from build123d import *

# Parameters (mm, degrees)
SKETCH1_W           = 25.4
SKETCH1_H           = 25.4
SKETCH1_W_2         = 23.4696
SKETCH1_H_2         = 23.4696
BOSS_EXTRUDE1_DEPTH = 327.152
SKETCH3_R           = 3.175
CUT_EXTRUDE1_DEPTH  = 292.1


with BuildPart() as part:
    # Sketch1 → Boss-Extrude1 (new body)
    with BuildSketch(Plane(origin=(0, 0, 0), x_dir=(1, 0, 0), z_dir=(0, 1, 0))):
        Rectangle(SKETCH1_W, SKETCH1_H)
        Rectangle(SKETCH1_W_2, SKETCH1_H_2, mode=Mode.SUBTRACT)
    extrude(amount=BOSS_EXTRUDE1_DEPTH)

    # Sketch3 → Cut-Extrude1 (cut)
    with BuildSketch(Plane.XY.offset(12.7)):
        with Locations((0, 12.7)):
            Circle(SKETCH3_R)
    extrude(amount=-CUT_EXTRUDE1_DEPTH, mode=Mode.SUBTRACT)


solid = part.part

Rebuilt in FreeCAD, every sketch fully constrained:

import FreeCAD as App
import Part
import Sketcher
from FreeCAD import Vector
Q = App.Units.Quantity

doc = App.newDocument("Part")
params = doc.addObject("Spreadsheet::Sheet", "Params")
for row, (alias, value) in enumerate([
    ("sketch1_width", "1 in"),
    ("sketch1_width2", "0.924 in"),
    ("pad1_length", "12.88 in"),
    ("sketch2_diameter", "0.25 in"),
    ("pocket1_length", "11.5 in"),
], start=1):
    params.set(f"A{row}", alias)
    params.set(f"B{row}", "=" + value)
    params.setAlias(f"B{row}", alias)

body = doc.addObject("PartDesign::Body", "Body")

# Sketch on XZ plane
sketch1 = body.newObject("Sketcher::SketchObject", "Sketch")
sketch1.AttachmentSupport = (doc.getObject("XZ_Plane"), [""])
sketch1.MapMode = "FlatFace"
sketch1.addGeometry(Part.LineSegment(Vector(-13, -13, 0), Vector(-13, 13, 0)), False)
sketch1.addGeometry(Part.LineSegment(Vector(-13, 13, 0), Vector(13, 13, 0)), False)
sketch1.addGeometry(Part.LineSegment(Vector(13, 13, 0), Vector(13, -13, 0)), False)
sketch1.addGeometry(Part.LineSegment(Vector(13, -13, 0), Vector(-13, -13, 0)), False)
sketch1.addGeometry(Part.LineSegment(Vector(12, 12, 0), Vector(-12, 12, 0)), False)
sketch1.addGeometry(Part.LineSegment(Vector(-12, 12, 0), Vector(-12, -12, 0)), False)
sketch1.addGeometry(Part.LineSegment(Vector(-12, -12, 0), Vector(12, -12, 0)), False)
sketch1.addGeometry(Part.LineSegment(Vector(12, -12, 0), Vector(12, 12, 0)), False)
sketch1.addConstraint(Sketcher.Constraint("Coincident", 0, 2, 1, 1))
sketch1.addConstraint(Sketcher.Constraint("Coincident", 1, 2, 2, 1))
sketch1.addConstraint(Sketcher.Constraint("Coincident", 2, 2, 3, 1))
sketch1.addConstraint(Sketcher.Constraint("Coincident", 3, 2, 0, 1))
sketch1.addConstraint(Sketcher.Constraint("Coincident", 4, 2, 5, 1))
sketch1.addConstraint(Sketcher.Constraint("Coincident", 5, 2, 6, 1))
sketch1.addConstraint(Sketcher.Constraint("Coincident", 6, 2, 7, 1))
sketch1.addConstraint(Sketcher.Constraint("Coincident", 7, 2, 4, 1))
sketch1.addConstraint(Sketcher.Constraint("Vertical", 0))
sketch1.addConstraint(Sketcher.Constraint("Horizontal", 1))
sketch1.addConstraint(Sketcher.Constraint("Vertical", 2))
sketch1.addConstraint(Sketcher.Constraint("Horizontal", 3))
sketch1.addConstraint(Sketcher.Constraint("Horizontal", 4))
sketch1.addConstraint(Sketcher.Constraint("Vertical", 5))
sketch1.addConstraint(Sketcher.Constraint("Horizontal", 6))
sketch1.addConstraint(Sketcher.Constraint("Vertical", 7))
sketch1.addConstraint(Sketcher.Constraint("Symmetric", 0, 2, 2, 2, -1, 1))
sketch1.addConstraint(Sketcher.Constraint("Symmetric", 4, 2, 6, 2, -1, 1))
sketch1.addConstraint(Sketcher.Constraint("Equal", 3, 0))
sketch1.addConstraint(Sketcher.Constraint("Equal", 6, 5))
sketch1.addConstraint(Sketcher.Constraint("DistanceX", 1, 1, 1, 2, Q("1 in")))
sketch1.addConstraint(Sketcher.Constraint("DistanceX", 4, 2, 4, 1, Q("0.924 in")))
sketch1.setExpression("Constraints[20]", "Params.sketch1_width")
sketch1.setExpression("Constraints[21]", "Params.sketch1_width2")
pad1 = body.newObject("PartDesign::Pad", "Pad")
pad1.Profile = sketch1
pad1.setExpression("Length", "Params.pad1_length")
pad1.Reversed = True

# Sketch on XY plane
sketch2 = body.newObject("Sketcher::SketchObject", "Sketch001")
sketch2.AttachmentSupport = (doc.getObject("XY_Plane"), [""])
sketch2.MapMode = "FlatFace"
sketch2.AttachmentOffset = App.Placement(Vector(0, 0, 0.5 * 25.4), App.Rotation())
sketch2.addGeometry(Part.Circle(Vector(0, 12.7, 0), Vector(0, 0, 1), 3.2), False)
sketch2.addConstraint(Sketcher.Constraint("PointOnObject", 0, 3, -2))
sketch2.addConstraint(Sketcher.Constraint("Diameter", 0, Q("0.25 in")))
sketch2.addConstraint(Sketcher.Constraint("DistanceY", -1, 1, 0, 3, Q("0.5 in")))
sketch2.setExpression("Constraints[1]", "Params.sketch2_diameter")
pocket1 = body.newObject("PartDesign::Pocket", "Pocket")
pocket1.Profile = sketch2
pocket1.setExpression("Length", "Params.pocket1_length")

doc.recompute()
